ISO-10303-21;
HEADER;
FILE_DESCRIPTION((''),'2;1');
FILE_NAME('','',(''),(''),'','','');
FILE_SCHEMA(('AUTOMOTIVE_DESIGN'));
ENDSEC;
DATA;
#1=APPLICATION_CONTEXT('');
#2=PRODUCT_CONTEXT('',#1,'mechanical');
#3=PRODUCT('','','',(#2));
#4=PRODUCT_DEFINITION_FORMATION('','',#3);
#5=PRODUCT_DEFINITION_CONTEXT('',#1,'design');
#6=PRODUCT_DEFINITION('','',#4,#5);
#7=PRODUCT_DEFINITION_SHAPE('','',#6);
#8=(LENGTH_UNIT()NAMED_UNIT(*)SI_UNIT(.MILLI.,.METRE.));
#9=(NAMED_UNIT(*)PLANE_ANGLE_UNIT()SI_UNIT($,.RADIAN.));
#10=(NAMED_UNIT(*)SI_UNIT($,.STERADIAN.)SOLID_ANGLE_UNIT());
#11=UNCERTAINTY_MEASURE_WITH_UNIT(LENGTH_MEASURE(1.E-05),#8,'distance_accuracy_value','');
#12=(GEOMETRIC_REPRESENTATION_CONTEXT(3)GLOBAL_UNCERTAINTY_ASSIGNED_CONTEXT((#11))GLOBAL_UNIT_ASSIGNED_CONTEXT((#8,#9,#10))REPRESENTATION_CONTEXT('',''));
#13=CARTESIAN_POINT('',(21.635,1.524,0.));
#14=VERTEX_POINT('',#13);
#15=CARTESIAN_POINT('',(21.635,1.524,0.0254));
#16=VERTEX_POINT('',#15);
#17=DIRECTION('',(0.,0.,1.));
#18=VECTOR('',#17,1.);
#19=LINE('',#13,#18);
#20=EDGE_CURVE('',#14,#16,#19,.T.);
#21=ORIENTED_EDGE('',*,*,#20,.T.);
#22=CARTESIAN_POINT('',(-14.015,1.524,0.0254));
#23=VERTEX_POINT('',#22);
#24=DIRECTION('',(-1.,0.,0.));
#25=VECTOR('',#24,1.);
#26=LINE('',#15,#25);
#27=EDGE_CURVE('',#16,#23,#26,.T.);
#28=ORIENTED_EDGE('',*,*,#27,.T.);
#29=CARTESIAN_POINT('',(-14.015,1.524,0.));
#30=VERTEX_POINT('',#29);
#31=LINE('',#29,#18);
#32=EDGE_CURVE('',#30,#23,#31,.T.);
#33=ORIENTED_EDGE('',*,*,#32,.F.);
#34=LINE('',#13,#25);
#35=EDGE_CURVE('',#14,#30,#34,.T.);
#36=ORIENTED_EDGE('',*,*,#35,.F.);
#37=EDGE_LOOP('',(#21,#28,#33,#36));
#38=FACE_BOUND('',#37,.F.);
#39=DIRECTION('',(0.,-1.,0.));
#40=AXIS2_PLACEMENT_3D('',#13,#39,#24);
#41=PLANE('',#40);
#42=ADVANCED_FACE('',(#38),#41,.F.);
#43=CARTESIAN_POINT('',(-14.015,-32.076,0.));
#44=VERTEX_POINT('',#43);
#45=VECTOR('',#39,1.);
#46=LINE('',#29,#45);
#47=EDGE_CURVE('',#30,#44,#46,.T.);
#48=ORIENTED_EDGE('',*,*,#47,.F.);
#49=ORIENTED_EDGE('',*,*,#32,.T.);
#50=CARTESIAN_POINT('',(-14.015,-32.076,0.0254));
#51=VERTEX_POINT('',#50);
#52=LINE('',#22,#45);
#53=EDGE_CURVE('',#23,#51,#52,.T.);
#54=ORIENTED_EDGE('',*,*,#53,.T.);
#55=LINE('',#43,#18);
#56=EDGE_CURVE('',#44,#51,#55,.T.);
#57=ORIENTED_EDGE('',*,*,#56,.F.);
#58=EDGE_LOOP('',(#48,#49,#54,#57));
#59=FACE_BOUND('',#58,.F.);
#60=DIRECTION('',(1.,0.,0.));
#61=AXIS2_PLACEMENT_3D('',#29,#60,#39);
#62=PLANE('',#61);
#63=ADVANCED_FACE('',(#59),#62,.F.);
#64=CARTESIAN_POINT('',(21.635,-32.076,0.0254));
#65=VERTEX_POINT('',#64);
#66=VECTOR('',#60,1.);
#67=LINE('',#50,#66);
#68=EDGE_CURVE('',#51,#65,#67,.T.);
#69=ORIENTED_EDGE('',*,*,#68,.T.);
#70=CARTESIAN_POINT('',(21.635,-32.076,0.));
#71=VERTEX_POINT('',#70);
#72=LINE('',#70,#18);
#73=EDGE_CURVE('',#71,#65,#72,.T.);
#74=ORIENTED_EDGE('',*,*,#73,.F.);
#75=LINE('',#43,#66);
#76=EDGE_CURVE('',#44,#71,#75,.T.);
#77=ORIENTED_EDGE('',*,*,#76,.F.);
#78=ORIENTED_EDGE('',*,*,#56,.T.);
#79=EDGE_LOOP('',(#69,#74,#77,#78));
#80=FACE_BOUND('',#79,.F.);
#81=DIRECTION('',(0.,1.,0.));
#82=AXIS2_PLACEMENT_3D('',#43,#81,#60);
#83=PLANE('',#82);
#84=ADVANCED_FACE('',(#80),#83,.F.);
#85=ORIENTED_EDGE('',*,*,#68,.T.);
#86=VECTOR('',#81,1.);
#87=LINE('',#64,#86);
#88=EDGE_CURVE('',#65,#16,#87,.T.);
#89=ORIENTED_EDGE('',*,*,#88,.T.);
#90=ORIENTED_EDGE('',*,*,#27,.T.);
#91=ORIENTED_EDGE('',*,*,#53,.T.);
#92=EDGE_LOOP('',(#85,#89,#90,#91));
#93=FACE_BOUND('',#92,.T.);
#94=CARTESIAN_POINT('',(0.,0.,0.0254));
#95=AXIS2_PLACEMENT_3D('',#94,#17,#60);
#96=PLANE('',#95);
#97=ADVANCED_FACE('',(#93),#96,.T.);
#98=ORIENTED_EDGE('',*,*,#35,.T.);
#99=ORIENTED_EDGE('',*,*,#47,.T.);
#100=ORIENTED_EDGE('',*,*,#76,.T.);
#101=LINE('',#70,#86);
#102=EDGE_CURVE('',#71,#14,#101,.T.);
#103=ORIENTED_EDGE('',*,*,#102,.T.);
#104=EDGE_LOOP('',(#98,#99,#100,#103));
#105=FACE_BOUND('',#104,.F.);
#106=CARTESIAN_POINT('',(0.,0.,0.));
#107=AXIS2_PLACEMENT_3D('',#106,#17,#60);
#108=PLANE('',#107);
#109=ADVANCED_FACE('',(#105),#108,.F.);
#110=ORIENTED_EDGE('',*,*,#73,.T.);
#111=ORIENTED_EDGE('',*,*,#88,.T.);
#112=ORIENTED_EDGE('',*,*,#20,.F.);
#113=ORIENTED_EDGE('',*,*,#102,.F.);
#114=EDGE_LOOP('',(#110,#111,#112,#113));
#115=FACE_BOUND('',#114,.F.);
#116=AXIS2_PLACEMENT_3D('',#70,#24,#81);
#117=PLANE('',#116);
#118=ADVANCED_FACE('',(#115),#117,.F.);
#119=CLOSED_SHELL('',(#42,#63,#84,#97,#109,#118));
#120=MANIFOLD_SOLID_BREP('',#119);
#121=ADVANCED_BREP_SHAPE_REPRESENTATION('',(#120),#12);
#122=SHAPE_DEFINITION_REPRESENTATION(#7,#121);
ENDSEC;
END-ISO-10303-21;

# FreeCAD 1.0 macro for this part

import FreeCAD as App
import Part
import Sketcher
from FreeCAD import Vector
Q = App.Units.Quantity

doc = App.newDocument("Part")
body = doc.addObject("PartDesign::Body", "Body")

# Sketch on XY plane
sketch1 = doc.addObject("Sketcher::SketchObject", "Sketch")
body.addObject(sketch1)
sketch1.AttachmentSupport = (doc.XY_Plane, [""])
sketch1.MapMode = "FlatFace"
sketch1.addGeometry(Part.LineSegment(Vector(-14, 2, 0), Vector(-14, -32, 0)), False)
sketch1.addGeometry(Part.LineSegment(Vector(-14, -32, 0), Vector(22, -32, 0)), False)
sketch1.addGeometry(Part.LineSegment(Vector(22, -32, 0), Vector(22, 2, 0)), False)
sketch1.addGeometry(Part.LineSegment(Vector(22, 2, 0), Vector(-14, 2, 0)), False)
sketch1.addConstraint(Sketcher.Constraint("Coincident", 0, 2, 1, 1))
sketch1.addConstraint(Sketcher.Constraint("Coincident", 1, 2, 2, 1))
sketch1.addConstraint(Sketcher.Constraint("Coincident", 2, 2, 3, 1))
sketch1.addConstraint(Sketcher.Constraint("Coincident", 3, 2, 0, 1))
sketch1.addConstraint(Sketcher.Constraint("Vertical", 0))
sketch1.addConstraint(Sketcher.Constraint("Horizontal", 1))
sketch1.addConstraint(Sketcher.Constraint("Vertical", 2))
sketch1.addConstraint(Sketcher.Constraint("Horizontal", 3))
sketch1.addConstraint(Sketcher.Constraint("DistanceY", 0, 2, 0, 1, Q("33.6 mm")))
sketch1.addConstraint(Sketcher.Constraint("DistanceX", 1, 1, 1, 2, Q("35.65 mm")))
sketch1.addConstraint(Sketcher.Constraint("DistanceX", 0, 2, -1, 1, Q("14.015 mm")))
sketch1.addConstraint(Sketcher.Constraint("DistanceY", 0, 2, -1, 1, Q("32.076 mm")))
pad1 = doc.addObject("PartDesign::Pad", "Pad")
body.addObject(pad1)
pad1.Profile = sketch1
pad1.Length = 0.0254

doc.recompute()
